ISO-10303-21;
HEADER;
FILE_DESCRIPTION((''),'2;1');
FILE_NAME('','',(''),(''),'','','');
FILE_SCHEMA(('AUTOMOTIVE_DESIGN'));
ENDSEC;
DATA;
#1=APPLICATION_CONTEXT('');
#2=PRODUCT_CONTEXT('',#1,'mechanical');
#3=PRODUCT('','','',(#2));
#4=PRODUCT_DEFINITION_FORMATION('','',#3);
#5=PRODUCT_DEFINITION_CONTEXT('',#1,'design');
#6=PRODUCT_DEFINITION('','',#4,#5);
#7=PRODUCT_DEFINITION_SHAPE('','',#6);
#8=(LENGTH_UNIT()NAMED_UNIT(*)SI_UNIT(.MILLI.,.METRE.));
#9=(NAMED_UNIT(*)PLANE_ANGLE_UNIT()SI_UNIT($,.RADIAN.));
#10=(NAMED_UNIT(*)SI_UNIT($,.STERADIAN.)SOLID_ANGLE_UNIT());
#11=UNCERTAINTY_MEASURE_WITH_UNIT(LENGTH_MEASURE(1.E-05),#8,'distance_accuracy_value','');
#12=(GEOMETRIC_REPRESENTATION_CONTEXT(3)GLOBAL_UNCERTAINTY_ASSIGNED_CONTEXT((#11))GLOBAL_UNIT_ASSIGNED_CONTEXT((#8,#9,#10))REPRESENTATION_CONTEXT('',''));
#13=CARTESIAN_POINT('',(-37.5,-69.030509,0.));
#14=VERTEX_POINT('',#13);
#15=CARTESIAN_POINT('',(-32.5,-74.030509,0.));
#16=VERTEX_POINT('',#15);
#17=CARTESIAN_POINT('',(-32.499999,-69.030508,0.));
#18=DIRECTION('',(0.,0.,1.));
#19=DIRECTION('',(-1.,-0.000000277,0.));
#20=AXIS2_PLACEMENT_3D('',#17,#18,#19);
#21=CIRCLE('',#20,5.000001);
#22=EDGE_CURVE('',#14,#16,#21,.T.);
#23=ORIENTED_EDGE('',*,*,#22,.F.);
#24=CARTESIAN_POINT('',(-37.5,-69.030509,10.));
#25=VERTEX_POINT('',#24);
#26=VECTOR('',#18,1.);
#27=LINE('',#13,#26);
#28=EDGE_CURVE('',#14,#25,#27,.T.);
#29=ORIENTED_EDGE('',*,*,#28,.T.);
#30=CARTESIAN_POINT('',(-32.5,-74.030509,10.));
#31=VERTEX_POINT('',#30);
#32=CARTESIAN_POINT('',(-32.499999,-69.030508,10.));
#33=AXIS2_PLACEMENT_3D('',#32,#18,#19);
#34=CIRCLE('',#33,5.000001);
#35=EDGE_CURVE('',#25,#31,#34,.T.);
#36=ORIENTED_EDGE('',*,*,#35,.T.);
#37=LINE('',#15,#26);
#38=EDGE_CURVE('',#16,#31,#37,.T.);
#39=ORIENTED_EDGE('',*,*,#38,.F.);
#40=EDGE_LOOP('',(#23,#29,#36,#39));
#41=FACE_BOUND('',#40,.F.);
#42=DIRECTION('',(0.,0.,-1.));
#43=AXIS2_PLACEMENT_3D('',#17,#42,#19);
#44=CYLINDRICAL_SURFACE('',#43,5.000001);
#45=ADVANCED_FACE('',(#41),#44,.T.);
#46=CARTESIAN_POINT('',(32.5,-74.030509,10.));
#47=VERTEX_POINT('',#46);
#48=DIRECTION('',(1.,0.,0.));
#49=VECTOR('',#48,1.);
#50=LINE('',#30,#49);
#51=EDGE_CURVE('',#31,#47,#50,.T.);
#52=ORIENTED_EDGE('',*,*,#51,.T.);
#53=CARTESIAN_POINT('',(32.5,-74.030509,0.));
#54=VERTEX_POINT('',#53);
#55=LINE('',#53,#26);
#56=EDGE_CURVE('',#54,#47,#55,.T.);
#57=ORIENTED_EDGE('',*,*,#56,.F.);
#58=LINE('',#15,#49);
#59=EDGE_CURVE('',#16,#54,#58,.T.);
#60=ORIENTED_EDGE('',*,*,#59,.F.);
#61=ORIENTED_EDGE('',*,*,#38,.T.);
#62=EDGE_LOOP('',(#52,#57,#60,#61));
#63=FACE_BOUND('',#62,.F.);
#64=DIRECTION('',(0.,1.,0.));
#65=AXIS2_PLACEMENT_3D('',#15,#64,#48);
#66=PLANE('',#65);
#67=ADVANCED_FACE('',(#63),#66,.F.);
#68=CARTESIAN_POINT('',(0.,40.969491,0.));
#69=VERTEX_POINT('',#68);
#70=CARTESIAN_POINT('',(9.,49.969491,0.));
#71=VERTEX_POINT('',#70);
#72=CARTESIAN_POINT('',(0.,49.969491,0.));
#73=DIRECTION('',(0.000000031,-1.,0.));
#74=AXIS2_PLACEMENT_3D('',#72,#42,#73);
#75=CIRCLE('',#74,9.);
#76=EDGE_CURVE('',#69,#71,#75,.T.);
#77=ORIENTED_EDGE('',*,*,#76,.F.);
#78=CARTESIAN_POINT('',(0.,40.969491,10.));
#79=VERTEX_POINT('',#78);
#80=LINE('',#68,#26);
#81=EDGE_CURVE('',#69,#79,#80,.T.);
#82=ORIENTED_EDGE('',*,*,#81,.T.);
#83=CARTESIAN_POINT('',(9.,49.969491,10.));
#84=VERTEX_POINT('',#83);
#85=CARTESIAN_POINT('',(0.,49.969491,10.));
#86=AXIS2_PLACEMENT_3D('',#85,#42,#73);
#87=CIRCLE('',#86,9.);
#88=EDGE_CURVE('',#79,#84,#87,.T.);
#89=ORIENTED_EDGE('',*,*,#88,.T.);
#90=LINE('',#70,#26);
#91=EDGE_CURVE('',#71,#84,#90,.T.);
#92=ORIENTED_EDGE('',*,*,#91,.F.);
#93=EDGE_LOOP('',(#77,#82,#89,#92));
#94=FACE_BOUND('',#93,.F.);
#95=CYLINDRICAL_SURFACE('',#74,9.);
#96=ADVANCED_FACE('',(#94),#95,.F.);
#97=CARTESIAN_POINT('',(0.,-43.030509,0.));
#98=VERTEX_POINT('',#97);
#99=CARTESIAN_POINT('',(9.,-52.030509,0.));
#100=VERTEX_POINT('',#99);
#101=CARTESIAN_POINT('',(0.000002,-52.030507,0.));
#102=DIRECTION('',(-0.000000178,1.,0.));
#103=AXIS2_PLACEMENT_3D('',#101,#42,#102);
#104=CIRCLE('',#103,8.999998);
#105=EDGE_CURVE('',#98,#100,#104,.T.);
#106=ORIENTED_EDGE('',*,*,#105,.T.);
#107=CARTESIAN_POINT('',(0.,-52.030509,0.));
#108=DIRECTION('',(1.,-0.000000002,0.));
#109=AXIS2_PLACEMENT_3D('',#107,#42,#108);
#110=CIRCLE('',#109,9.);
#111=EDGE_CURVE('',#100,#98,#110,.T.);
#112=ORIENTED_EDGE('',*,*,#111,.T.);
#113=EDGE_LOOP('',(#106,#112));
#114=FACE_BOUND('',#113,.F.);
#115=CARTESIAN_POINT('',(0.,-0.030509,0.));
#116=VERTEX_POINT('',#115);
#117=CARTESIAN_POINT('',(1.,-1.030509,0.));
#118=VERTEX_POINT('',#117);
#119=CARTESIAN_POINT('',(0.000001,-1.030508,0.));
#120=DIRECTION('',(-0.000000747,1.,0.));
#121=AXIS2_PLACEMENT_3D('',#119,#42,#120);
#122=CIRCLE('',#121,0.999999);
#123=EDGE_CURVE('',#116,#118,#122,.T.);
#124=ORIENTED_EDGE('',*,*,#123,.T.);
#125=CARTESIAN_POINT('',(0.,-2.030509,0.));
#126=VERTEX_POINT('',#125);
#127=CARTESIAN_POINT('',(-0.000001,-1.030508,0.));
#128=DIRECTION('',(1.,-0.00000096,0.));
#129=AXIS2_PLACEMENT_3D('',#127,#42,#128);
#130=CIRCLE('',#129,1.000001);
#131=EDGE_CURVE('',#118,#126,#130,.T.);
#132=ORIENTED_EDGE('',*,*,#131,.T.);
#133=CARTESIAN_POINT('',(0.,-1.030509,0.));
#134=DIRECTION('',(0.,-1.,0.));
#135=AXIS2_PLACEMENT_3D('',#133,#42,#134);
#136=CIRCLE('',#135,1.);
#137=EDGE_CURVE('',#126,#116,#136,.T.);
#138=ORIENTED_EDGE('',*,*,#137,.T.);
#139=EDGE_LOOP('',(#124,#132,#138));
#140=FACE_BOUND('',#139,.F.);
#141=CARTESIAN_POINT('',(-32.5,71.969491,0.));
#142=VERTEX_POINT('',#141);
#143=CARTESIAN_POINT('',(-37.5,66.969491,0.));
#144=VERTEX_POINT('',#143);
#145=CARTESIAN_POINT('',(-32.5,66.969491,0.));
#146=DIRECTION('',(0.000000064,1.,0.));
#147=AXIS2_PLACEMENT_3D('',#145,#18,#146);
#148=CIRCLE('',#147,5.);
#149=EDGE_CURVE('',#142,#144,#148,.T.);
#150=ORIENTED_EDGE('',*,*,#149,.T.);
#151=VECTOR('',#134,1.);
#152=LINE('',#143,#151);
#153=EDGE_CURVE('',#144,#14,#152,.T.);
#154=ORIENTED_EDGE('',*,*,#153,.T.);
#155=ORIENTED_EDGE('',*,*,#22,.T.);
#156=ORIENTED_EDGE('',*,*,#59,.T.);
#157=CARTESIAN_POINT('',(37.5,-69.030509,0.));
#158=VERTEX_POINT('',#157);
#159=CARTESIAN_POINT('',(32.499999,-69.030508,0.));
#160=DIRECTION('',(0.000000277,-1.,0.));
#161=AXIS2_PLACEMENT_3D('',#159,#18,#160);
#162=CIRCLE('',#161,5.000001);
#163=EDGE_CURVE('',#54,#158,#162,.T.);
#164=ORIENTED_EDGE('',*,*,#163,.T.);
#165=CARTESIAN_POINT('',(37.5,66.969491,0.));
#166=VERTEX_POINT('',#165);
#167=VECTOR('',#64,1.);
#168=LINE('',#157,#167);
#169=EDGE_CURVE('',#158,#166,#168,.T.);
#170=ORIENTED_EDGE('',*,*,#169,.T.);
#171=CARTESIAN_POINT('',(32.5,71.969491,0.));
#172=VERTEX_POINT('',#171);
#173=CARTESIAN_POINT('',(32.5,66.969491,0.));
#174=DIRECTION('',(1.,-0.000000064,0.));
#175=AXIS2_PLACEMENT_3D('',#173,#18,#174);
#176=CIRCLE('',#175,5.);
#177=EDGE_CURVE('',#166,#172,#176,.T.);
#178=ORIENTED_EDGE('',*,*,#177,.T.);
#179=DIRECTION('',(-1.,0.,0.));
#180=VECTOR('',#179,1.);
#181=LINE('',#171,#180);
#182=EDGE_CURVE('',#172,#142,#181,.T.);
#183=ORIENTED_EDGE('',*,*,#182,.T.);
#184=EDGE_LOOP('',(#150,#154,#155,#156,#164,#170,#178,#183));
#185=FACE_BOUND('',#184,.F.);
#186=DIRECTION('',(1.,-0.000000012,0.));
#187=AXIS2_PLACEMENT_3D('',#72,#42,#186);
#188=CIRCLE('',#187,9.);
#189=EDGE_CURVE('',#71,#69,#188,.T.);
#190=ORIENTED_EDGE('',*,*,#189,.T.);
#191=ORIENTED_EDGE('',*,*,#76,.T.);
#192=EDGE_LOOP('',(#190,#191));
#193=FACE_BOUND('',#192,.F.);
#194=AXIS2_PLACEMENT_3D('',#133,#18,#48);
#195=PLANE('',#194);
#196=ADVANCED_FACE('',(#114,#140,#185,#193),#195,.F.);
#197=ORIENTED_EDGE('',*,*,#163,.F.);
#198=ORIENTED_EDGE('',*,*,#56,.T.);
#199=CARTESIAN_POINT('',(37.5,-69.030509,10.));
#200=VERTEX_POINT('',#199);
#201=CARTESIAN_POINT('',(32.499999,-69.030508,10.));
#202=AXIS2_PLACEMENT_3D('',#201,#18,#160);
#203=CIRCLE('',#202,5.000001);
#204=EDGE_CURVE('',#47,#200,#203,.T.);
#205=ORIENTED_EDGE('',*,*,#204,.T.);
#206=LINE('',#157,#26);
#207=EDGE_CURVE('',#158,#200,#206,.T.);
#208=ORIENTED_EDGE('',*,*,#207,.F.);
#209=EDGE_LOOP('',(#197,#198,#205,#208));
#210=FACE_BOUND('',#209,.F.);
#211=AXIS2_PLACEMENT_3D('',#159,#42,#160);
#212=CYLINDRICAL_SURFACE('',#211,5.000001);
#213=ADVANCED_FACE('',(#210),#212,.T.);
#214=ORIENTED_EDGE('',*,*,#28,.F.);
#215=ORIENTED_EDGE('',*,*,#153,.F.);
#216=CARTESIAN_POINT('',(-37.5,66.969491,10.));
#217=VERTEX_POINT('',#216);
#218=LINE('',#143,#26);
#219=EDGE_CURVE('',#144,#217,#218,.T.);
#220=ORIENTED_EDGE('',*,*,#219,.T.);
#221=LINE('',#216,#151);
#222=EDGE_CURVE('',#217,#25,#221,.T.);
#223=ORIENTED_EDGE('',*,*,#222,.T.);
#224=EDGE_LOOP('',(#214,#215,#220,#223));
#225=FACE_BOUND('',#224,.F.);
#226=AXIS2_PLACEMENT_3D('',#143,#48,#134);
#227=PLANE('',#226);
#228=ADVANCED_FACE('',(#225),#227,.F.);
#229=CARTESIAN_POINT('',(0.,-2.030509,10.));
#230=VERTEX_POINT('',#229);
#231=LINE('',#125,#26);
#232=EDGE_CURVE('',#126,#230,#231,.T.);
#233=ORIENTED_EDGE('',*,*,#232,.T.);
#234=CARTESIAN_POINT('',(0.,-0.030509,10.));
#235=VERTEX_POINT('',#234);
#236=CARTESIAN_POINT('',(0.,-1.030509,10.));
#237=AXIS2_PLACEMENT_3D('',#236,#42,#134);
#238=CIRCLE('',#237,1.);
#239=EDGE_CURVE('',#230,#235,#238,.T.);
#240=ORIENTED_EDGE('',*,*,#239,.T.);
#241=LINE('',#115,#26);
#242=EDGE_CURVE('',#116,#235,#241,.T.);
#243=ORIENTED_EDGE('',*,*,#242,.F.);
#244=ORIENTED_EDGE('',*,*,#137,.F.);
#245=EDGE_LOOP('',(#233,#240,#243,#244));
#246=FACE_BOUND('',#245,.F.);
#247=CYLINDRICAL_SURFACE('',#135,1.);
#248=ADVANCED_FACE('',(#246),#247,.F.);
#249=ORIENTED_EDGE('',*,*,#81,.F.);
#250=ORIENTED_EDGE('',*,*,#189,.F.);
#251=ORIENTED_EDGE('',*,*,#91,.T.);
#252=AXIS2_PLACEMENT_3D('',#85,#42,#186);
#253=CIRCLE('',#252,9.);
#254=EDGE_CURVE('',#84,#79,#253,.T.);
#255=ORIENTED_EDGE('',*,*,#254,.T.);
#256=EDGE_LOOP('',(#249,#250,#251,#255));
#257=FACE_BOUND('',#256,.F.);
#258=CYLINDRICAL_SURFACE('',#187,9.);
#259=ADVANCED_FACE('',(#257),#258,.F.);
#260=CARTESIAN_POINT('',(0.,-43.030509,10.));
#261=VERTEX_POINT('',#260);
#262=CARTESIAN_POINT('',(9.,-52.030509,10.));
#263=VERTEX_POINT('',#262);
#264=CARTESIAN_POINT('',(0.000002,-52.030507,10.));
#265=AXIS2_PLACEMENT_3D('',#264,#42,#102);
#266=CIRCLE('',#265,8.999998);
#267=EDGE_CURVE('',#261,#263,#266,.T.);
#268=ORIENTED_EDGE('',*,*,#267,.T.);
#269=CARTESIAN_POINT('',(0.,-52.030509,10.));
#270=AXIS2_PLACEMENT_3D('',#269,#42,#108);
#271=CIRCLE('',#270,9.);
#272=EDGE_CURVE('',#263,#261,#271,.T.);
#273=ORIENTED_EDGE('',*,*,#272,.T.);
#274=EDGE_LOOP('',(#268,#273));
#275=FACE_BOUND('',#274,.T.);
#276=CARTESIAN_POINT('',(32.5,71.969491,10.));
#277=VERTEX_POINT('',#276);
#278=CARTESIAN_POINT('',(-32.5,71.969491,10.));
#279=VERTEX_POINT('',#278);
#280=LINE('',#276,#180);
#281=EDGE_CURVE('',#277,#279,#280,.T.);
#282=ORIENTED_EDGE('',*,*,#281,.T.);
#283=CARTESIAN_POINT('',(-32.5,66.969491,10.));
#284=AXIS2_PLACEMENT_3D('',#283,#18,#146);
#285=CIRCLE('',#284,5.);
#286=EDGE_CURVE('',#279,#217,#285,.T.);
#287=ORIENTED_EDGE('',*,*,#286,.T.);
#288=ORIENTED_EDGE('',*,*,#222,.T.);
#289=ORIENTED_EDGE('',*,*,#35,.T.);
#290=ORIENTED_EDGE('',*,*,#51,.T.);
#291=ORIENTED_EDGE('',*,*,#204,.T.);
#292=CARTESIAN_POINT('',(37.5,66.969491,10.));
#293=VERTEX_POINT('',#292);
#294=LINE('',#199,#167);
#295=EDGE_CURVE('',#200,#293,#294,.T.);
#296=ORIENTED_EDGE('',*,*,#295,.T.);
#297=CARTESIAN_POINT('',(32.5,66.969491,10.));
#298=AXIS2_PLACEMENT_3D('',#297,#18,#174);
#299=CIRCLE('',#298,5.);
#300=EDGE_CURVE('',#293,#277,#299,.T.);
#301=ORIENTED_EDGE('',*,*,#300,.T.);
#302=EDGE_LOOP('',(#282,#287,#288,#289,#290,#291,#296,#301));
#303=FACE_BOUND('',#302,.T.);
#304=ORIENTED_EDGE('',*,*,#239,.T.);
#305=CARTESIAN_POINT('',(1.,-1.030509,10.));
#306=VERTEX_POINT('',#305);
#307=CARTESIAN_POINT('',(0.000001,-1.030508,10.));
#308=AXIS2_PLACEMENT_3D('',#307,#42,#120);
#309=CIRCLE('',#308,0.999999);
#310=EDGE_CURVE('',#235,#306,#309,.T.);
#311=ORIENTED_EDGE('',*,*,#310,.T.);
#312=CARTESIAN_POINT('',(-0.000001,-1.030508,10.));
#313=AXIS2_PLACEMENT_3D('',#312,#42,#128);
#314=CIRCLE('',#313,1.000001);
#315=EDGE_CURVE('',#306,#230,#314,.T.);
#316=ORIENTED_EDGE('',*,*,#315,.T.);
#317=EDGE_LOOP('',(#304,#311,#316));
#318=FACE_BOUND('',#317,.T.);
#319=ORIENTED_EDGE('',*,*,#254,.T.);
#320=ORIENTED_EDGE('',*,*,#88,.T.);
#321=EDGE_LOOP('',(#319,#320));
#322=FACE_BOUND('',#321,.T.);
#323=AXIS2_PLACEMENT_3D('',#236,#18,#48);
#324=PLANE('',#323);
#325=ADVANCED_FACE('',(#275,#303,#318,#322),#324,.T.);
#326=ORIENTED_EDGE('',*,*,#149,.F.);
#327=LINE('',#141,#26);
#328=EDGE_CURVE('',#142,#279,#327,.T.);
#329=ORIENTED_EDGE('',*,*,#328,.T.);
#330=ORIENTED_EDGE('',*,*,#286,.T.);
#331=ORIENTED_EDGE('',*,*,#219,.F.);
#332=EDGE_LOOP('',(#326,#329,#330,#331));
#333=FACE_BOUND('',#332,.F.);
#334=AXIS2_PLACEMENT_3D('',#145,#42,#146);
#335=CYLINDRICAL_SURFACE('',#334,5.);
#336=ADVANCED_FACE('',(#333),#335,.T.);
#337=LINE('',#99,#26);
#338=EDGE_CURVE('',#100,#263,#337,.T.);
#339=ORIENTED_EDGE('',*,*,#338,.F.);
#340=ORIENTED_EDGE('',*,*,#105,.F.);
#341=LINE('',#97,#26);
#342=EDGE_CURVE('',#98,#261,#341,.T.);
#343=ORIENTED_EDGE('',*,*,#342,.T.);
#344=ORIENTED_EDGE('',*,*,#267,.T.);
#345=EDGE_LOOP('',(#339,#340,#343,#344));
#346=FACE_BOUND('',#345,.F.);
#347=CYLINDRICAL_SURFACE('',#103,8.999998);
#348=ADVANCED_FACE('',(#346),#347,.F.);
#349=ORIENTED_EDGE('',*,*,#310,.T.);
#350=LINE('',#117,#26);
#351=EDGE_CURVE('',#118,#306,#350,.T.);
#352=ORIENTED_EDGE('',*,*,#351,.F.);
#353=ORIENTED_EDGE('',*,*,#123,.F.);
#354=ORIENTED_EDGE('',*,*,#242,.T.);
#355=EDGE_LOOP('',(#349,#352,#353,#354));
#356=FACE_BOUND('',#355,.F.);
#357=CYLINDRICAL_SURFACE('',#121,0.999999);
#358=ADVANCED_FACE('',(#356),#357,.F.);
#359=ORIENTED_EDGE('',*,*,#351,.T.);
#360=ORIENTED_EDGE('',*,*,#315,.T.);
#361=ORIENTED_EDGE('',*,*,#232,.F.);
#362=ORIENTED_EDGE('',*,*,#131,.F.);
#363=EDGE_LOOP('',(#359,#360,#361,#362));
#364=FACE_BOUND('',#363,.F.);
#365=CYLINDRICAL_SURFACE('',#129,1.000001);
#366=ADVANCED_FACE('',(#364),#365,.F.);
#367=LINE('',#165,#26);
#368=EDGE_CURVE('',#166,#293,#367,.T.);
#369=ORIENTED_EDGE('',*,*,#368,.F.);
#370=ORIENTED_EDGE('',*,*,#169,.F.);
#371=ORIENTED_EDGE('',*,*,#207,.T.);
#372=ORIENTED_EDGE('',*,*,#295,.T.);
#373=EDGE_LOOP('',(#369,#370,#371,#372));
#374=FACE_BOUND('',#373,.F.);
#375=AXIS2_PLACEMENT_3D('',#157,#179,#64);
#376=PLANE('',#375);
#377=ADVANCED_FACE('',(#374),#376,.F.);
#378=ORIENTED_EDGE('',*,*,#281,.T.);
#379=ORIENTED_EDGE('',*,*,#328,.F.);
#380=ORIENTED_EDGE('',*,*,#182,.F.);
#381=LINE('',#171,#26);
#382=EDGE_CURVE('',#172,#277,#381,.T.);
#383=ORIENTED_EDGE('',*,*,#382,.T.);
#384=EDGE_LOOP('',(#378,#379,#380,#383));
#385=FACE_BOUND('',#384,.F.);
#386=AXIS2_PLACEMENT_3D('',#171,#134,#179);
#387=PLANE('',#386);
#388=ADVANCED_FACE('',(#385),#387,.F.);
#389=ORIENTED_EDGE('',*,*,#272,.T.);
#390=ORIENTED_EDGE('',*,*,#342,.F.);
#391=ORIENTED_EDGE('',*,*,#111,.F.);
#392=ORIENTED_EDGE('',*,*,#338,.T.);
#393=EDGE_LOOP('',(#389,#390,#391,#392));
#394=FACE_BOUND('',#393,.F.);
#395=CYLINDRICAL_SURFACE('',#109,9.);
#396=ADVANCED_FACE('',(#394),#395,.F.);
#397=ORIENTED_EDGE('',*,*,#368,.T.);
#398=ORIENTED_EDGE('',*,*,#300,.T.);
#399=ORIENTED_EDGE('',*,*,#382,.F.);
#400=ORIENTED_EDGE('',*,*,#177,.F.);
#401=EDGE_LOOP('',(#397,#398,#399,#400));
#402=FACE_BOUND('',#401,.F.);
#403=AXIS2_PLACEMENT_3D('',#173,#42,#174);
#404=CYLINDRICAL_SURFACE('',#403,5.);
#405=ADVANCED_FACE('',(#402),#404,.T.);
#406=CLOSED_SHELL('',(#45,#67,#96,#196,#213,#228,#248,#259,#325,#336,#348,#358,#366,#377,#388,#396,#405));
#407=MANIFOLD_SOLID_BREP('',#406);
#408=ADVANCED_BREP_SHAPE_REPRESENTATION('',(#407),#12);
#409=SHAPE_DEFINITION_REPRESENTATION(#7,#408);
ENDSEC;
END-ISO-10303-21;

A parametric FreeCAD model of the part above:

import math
import FreeCAD as App
import Part
import Sketcher
from FreeCAD import Vector
Q = App.Units.Quantity

doc = App.newDocument("Part")
body = doc.addObject("PartDesign::Body", "Body")

# Sketch on XY plane
sketch1 = body.newObject("Sketcher::SketchObject", "Sketch")
sketch1.AttachmentSupport = (doc.getObject("XY_Plane"), [""])
sketch1.MapMode = "FlatFace"
sketch1.addGeometry([
    Part.ArcOfCircle(Part.Circle(Vector(32.5, 67, 0), Vector(0, 0, 1), 5), math.radians(0), math.radians(90)),  # 0
    Part.LineSegment(Vector(32.5, 72, 0), Vector(-32.5, 72, 0)),  # 1
    Part.ArcOfCircle(Part.Circle(Vector(-32.5, 67, 0), Vector(0, 0, 1), 5), math.radians(90), math.radians(180)),  # 2
    Part.LineSegment(Vector(-37.5, 67, 0), Vector(-37.5, -69, 0)),  # 3
    Part.ArcOfCircle(Part.Circle(Vector(-32.5, -69, 0), Vector(0, 0, 1), 5), math.radians(-180), math.radians(-90)),  # 4
    Part.LineSegment(Vector(-32.5, -74, 0), Vector(32.5, -74, 0)),  # 5
    Part.ArcOfCircle(Part.Circle(Vector(32.5, -69, 0), Vector(0, 0, 1), 5), math.radians(-90), math.radians(0)),  # 6
    Part.LineSegment(Vector(37.5, -69, 0), Vector(37.5, 67, 0)),  # 7
    Part.ArcOfCircle(Part.Circle(Vector(0, -52, 0), Vector(0, 0, 1), 9), math.radians(0), math.radians(90)),  # 8
    Part.ArcOfCircle(Part.Circle(Vector(0, -52, 0), Vector(0, 0, 1), 9), math.radians(90), math.radians(360)),  # 9
    Part.ArcOfCircle(Part.Circle(Vector(0, -1, 0), Vector(0, 0, 1), 1), math.radians(0), math.radians(90)),  # 10
    Part.ArcOfCircle(Part.Circle(Vector(0, -1, 0), Vector(0, 0, 1), 1), math.radians(-90), math.radians(0)),  # 11
    Part.ArcOfCircle(Part.Circle(Vector(0, -1, 0), Vector(0, 0, 1), 1), math.radians(90), math.radians(270)),  # 12
    Part.ArcOfCircle(Part.Circle(Vector(0, 50, 0), Vector(0, 0, 1), 9), math.radians(0), math.radians(270)),  # 13
    Part.ArcOfCircle(Part.Circle(Vector(0, 50, 0), Vector(0, 0, 1), 9), math.radians(-90), math.radians(0)),  # 14
], False)
sketch1.addConstraint([
    Sketcher.Constraint("Tangent", 0, 2, 1, 1),
    Sketcher.Constraint("Tangent", 1, 2, 2, 1),
    Sketcher.Constraint("Tangent", 2, 2, 3, 1),
    Sketcher.Constraint("Tangent", 3, 2, 4, 1),
    Sketcher.Constraint("Tangent", 4, 2, 5, 1),
    Sketcher.Constraint("Tangent", 5, 2, 6, 1),
    Sketcher.Constraint("Tangent", 6, 2, 7, 1),
    Sketcher.Constraint("Tangent", 7, 2, 0, 1),
    Sketcher.Constraint("Tangent", 8, 1, 9, 2),
    Sketcher.Constraint("Coincident", 9, 1, 8, 2),
    Sketcher.Constraint("Tangent", 10, 1, 11, 2),
    Sketcher.Constraint("Tangent", 11, 1, 12, 2),
    Sketcher.Constraint("Tangent", 12, 1, 10, 2),
    Sketcher.Constraint("Tangent", 13, 1, 14, 2),
    Sketcher.Constraint("Coincident", 14, 1, 13, 2),
    Sketcher.Constraint("Horizontal", 1),
    Sketcher.Constraint("Vertical", 3),
    Sketcher.Constraint("Horizontal", 5),
    Sketcher.Constraint("Vertical", 7),
    Sketcher.Constraint("Equal", 0, 2),
    Sketcher.Constraint("Equal", 2, 4),
    Sketcher.Constraint("Equal", 4, 6),
    Sketcher.Constraint("Equal", 9, 13),
    Sketcher.Constraint("PointOnObject", 8, 3, -2),
    Sketcher.Constraint("PointOnObject", 10, 3, -2),
    Sketcher.Constraint("PointOnObject", 13, 3, -2),
    Sketcher.Constraint("PointOnObject", 9, 1, -2),
    Sketcher.Constraint("PointOnObject", 11, 1, -2),
    Sketcher.Constraint("PointOnObject", 12, 1, -2),
    Sketcher.Constraint("PointOnObject", 14, 1, -2),
    Sketcher.Constraint("Horizontal", 9, 3, 8, 1),
    Sketcher.Constraint("Horizontal", 12, 3, 10, 1),
    Sketcher.Constraint("Horizontal", 14, 3, 13, 1),
    Sketcher.Constraint("Radius", 0, Q("5 mm")),
    Sketcher.Constraint("Radius", 8, Q("8.999998 mm")),
    Sketcher.Constraint("Radius", 10, Q("0.999999 mm")),
    Sketcher.Constraint("DistanceX", 1, 2, 1, 1, Q("65 mm")),
    Sketcher.Constraint("DistanceY", 3, 2, 3, 1, Q("136 mm")),
    Sketcher.Constraint("DistanceY", 6, 3, 8, 3, Q("17 mm")),
    Sketcher.Constraint("DistanceY", 8, 3, 10, 3, Q("50.999999 mm")),
    Sketcher.Constraint("DistanceY", 13, 3, 2, 3, Q("17 mm")),
    Sketcher.Constraint("DistanceX", -1, 1, 0, 3, Q("32.5 mm")),
    Sketcher.Constraint("DistanceY", -1, 1, 0, 3, Q("66.969491 mm")),
])
pad1 = body.newObject("PartDesign::Pad", "Pad")
pad1.Profile = sketch1
pad1.Length = 10

doc.recompute()
